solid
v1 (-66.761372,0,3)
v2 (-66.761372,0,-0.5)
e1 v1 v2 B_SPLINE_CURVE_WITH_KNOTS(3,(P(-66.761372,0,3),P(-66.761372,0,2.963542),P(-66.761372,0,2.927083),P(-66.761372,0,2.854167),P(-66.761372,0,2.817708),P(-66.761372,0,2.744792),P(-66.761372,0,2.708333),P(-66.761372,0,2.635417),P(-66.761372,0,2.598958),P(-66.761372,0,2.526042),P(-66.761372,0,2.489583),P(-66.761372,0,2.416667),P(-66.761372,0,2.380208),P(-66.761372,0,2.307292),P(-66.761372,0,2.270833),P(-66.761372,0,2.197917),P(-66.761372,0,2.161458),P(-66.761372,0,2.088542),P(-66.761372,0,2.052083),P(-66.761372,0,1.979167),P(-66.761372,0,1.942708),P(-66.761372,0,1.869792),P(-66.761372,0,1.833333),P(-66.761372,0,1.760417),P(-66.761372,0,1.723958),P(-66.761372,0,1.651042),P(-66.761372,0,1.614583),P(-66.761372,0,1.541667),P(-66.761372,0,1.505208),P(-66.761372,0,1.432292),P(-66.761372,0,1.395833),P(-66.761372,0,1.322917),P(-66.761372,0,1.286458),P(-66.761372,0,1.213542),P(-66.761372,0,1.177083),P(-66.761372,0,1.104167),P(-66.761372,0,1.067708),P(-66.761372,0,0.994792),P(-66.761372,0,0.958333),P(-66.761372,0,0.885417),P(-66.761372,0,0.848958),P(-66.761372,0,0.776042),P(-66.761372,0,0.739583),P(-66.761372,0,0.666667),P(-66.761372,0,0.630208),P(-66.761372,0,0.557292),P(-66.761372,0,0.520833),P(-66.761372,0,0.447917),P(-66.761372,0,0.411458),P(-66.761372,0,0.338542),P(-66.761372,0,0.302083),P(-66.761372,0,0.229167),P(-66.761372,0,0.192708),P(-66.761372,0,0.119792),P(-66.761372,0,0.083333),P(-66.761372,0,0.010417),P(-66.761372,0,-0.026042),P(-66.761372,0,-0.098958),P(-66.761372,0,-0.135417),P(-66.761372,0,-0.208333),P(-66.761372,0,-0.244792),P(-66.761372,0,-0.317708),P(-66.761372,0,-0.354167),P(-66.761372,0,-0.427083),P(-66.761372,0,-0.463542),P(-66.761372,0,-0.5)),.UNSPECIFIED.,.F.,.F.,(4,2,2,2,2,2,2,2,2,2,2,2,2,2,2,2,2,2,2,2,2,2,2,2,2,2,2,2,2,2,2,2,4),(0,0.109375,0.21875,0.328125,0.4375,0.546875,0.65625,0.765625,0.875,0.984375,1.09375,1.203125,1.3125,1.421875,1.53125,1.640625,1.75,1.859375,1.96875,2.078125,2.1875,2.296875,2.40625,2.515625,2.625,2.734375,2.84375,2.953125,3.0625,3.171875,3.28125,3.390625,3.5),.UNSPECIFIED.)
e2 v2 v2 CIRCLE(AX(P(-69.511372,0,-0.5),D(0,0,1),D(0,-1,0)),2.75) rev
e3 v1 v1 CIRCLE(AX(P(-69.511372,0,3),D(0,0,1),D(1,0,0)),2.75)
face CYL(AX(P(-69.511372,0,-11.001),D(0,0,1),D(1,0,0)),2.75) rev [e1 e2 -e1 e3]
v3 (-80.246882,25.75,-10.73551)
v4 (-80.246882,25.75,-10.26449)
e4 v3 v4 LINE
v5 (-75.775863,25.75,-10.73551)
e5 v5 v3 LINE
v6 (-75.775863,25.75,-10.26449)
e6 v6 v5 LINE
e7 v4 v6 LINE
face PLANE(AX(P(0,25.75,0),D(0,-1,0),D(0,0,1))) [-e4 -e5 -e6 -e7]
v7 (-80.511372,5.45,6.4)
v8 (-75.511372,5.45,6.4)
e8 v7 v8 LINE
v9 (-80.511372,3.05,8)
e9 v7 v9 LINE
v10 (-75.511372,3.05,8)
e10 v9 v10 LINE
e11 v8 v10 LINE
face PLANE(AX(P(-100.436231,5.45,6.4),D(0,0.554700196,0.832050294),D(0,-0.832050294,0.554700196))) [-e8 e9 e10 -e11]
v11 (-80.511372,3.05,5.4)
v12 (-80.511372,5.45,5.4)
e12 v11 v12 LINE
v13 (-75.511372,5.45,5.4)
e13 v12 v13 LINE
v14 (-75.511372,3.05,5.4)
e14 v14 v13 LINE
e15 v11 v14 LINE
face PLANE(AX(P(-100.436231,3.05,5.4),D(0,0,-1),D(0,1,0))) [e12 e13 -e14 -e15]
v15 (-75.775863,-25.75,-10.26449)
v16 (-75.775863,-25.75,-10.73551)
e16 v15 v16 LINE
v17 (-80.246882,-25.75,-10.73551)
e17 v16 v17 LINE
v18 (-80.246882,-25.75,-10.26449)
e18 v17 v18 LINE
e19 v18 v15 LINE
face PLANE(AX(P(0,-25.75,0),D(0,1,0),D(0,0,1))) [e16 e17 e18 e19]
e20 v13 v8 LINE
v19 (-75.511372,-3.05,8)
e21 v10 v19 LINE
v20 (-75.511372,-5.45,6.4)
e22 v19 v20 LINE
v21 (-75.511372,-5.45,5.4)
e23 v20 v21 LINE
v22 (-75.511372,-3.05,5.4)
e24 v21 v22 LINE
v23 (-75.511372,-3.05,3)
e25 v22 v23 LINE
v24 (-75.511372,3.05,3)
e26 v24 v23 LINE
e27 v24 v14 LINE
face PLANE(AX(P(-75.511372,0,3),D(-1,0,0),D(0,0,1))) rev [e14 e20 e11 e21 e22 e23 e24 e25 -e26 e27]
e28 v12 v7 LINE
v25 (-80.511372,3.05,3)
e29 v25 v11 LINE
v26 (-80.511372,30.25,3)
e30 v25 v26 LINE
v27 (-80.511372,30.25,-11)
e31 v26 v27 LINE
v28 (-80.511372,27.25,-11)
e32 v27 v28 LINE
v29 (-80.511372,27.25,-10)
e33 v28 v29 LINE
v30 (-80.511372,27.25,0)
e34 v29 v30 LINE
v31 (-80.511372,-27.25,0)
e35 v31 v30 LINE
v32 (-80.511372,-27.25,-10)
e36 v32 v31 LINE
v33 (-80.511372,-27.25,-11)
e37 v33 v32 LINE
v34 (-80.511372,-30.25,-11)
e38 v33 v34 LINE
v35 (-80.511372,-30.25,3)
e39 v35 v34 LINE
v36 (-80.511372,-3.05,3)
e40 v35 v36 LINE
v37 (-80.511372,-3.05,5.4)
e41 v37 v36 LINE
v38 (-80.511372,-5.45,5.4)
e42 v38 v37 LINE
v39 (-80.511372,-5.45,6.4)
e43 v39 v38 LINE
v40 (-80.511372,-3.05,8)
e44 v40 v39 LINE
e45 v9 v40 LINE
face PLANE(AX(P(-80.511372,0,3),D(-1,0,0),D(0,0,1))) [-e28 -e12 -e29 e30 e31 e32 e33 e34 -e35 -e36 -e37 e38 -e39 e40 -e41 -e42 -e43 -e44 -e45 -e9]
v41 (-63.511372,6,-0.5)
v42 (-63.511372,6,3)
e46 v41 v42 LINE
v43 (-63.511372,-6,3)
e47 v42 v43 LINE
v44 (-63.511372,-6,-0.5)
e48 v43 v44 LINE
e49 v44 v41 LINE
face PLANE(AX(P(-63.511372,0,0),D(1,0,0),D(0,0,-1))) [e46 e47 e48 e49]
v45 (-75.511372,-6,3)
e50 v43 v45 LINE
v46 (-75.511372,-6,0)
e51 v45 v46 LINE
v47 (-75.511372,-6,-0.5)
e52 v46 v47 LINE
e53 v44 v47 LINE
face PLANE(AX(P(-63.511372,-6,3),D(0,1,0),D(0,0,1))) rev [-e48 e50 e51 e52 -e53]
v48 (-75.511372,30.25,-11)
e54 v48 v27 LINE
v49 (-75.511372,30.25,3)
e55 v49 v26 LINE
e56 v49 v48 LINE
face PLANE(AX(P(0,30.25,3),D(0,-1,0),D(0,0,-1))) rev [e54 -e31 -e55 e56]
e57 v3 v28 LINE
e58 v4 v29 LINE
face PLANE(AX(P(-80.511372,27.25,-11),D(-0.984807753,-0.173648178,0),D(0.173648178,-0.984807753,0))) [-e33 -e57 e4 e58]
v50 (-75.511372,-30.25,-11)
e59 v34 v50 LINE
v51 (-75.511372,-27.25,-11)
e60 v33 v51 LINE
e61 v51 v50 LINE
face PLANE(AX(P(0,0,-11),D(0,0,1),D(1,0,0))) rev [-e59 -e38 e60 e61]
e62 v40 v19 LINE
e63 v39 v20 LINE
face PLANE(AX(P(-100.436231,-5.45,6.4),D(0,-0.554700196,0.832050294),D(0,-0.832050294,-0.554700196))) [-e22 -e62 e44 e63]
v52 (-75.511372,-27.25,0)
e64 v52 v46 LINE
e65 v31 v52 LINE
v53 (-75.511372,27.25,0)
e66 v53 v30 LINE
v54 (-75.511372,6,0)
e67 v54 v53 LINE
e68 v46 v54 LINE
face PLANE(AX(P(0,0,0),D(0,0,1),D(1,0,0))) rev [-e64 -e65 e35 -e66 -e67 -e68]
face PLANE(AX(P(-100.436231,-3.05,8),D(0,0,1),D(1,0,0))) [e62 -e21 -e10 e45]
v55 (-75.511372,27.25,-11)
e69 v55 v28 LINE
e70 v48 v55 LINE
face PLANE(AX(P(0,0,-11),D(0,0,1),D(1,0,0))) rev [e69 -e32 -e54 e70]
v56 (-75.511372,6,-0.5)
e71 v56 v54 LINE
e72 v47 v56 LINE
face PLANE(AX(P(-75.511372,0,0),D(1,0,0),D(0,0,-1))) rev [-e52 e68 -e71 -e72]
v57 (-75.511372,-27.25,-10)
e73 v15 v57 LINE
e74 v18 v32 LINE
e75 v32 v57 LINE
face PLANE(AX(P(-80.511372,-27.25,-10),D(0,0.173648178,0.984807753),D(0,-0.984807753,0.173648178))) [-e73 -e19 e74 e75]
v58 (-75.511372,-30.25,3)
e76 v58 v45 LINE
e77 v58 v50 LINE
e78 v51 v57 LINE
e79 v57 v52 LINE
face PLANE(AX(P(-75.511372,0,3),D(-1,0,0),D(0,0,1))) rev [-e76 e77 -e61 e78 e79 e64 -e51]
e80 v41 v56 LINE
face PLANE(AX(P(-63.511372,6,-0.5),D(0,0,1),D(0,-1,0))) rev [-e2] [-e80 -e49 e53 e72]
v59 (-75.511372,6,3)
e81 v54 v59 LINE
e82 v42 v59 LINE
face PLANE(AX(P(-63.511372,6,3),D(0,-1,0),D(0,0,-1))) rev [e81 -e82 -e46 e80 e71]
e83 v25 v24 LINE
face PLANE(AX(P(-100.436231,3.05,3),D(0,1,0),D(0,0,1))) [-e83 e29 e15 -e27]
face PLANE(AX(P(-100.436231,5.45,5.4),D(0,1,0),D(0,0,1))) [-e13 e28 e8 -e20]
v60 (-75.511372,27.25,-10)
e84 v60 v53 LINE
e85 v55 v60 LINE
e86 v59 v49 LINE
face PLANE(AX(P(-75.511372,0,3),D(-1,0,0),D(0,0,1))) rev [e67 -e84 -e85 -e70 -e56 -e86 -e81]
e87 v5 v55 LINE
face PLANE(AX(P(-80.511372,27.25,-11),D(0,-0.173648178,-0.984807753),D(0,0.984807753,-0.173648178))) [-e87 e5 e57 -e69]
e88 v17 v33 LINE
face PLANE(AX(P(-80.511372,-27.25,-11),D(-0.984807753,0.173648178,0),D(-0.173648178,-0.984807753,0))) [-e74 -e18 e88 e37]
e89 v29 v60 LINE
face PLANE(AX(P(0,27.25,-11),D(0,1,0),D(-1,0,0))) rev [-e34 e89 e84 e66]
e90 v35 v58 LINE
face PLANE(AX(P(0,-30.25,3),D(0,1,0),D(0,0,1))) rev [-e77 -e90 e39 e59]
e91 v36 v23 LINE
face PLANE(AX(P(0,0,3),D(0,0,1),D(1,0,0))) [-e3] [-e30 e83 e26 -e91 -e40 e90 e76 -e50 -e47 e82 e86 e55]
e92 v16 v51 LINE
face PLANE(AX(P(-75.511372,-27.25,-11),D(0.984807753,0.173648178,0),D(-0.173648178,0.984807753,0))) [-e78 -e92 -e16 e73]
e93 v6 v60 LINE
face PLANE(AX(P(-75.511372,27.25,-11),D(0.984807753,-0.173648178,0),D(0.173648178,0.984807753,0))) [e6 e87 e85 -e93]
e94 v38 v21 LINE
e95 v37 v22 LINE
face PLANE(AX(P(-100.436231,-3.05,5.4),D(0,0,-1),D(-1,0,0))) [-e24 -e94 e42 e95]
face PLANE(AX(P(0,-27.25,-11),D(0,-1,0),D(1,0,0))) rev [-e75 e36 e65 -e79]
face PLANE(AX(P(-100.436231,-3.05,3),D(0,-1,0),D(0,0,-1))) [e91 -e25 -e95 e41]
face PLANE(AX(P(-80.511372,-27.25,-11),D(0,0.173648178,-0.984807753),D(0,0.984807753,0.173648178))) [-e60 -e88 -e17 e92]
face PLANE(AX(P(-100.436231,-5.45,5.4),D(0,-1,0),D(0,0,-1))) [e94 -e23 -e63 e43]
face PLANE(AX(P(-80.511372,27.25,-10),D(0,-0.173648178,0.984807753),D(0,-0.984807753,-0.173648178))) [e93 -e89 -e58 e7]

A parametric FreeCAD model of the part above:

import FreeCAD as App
import Part
import Sketcher

V = App.Vector

doc = App.newDocument("Part")
params = doc.addObject("Spreadsheet::Sheet", "Params")
for row, (alias, value) in enumerate([
    ("sketch1_width", "5 mm"),
    ("sketch1_height", "60.5 mm"),
    ("pad1_length", "3 mm"),
    ("sketch2_width", "5 mm"),
    ("sketch2_height", "3 mm"),
    ("pad2_length", "11 mm"),
    ("sketch3_width", "5 mm"),
    ("sketch3_height", "1 mm"),
    ("pad3_length", "1.5 mm"),
    ("pad3_taper", "-10 deg"),
    ("sketch4_width", "19 mm"),
    ("sketch4_height", "1 mm"),
    ("sketch4_width2", "2.4 mm"),
    ("sketch4_width3", "6.1 mm"),
    ("pad4_length", "5 mm"),
    ("sketch5_width", "12 mm"),
    ("sketch5_height", "3.5 mm"),
    ("pad5_length", "12 mm"),
    ("sketch6_diameter", "5.5 mm"),
], start=1):
    params.set(f"A{row}", alias)
    params.set(f"B{row}", "=" + value)
    params.setAlias(f"B{row}", alias)

body = doc.addObject("PartDesign::Body", "Body")

# Sketch on XY plane
sketch1 = body.newObject("Sketcher::SketchObject", "Sketch")
sketch1.AttachmentSupport = (doc.getObject("XY_Plane"), [""])
sketch1.MapMode = "FlatFace"
sketch1.addGeometry(Part.LineSegment(V(-81, -30, 0), V(-76, -30, 0)), False)
sketch1.addGeometry(Part.LineSegment(V(-76, -30, 0), V(-76, 30, 0)), False)
sketch1.addGeometry(Part.LineSegment(V(-76, 30, 0), V(-81, 30, 0)), False)
sketch1.addGeometry(Part.LineSegment(V(-81, 30, 0), V(-81, -30, 0)), False)
sketch1.addConstraint(Sketcher.Constraint("Coincident", 0, 2, 1, 1))
sketch1.addConstraint(Sketcher.Constraint("Coincident", 1, 2, 2, 1))
sketch1.addConstraint(Sketcher.Constraint("Coincident", 2, 2, 3, 1))
sketch1.addConstraint(Sketcher.Constraint("Coincident", 3, 2, 0, 1))
sketch1.addConstraint(Sketcher.Constraint("Horizontal", 0))
sketch1.addConstraint(Sketcher.Constraint("Vertical", 1))
sketch1.addConstraint(Sketcher.Constraint("Horizontal", 2))
sketch1.addConstraint(Sketcher.Constraint("Vertical", 3))
sketch1.addConstraint(Sketcher.Constraint("DistanceX", 0, 1, 0, 2, 5.0))
sketch1.addConstraint(Sketcher.Constraint("DistanceY", 1, 1, 1, 2, 60.5))
sketch1.addConstraint(Sketcher.Constraint("DistanceY", 0, 2, -1, 1, 30.25))
sketch1.addConstraint(Sketcher.Constraint("DistanceX", 0, 2, -1, 1, 75.511372))
sketch1.setExpression("Constraints[8]", "Params.sketch1_width")
sketch1.setExpression("Constraints[9]", "Params.sketch1_height")
pad1 = body.newObject("PartDesign::Pad", "Pad")
pad1.Profile = sketch1
pad1.setExpression("Length", "Params.pad1_length")

# Sketch on XY plane
sketch2 = body.newObject("Sketcher::SketchObject", "Sketch001")
sketch2.AttachmentSupport = (doc.getObject("XY_Plane"), [""])
sketch2.MapMode = "FlatFace"
sketch2.addGeometry(Part.LineSegment(V(-80.5, -27.2, 0), V(-80.5, -30.2, 0)), False)
sketch2.addGeometry(Part.LineSegment(V(-80.5, -30.2, 0), V(-75.5, -30.2, 0)), False)
sketch2.addGeometry(Part.LineSegment(V(-75.5, -30.2, 0), V(-75.5, -27.2, 0)), False)
sketch2.addGeometry(Part.LineSegment(V(-75.5, -27.2, 0), V(-80.5, -27.2, 0)), False)
sketch2.addGeometry(Part.LineSegment(V(-80.5, 30.2, 0), V(-80.5, 27.2, 0)), False)
sketch2.addGeometry(Part.LineSegment(V(-80.5, 27.2, 0), V(-75.5, 27.2, 0)), False)
sketch2.addGeometry(Part.LineSegment(V(-75.5, 27.2, 0), V(-75.5, 30.2, 0)), False)
sketch2.addGeometry(Part.LineSegment(V(-75.5, 30.2, 0), V(-80.5, 30.2, 0)), False)
sketch2.addConstraint(Sketcher.Constraint("Coincident", 0, 2, 1, 1))
sketch2.addConstraint(Sketcher.Constraint("Coincident", 1, 2, 2, 1))
sketch2.addConstraint(Sketcher.Constraint("Coincident", 2, 2, 3, 1))
sketch2.addConstraint(Sketcher.Constraint("Coincident", 3, 2, 0, 1))
sketch2.addConstraint(Sketcher.Constraint("Coincident", 4, 2, 5, 1))
sketch2.addConstraint(Sketcher.Constraint("Coincident", 5, 2, 6, 1))
sketch2.addConstraint(Sketcher.Constraint("Coincident", 6, 2, 7, 1))
sketch2.addConstraint(Sketcher.Constraint("Coincident", 7, 2, 4, 1))
sketch2.addConstraint(Sketcher.Constraint("Vertical", 0))
sketch2.addConstraint(Sketcher.Constraint("Horizontal", 1))
sketch2.addConstraint(Sketcher.Constraint("Vertical", 2))
sketch2.addConstraint(Sketcher.Constraint("Horizontal", 3))
sketch2.addConstraint(Sketcher.Constraint("Vertical", 4))
sketch2.addConstraint(Sketcher.Constraint("Horizontal", 5))
sketch2.addConstraint(Sketcher.Constraint("Vertical", 6))
sketch2.addConstraint(Sketcher.Constraint("Horizontal", 7))
sketch2.addConstraint(Sketcher.Constraint("Symmetric", 3, 2, 4, 2, -1))
sketch2.addConstraint(Sketcher.Constraint("Symmetric", 1, 2, 6, 2, -1))
sketch2.addConstraint(Sketcher.Constraint("DistanceX", 1, 1, 1, 2, 5.0))
sketch2.addConstraint(Sketcher.Constraint("DistanceY", 0, 2, 0, 1, 3.0))
sketch2.addConstraint(Sketcher.Constraint("DistanceY", 3, 2, 4, 2, 54.5))
sketch2.addConstraint(Sketcher.Constraint("DistanceX", 0, 2, -1, 1, 80.511372))
sketch2.setExpression("Constraints[18]", "Params.sketch2_width")
sketch2.setExpression("Constraints[19]", "Params.sketch2_height")
pad2 = body.newObject("PartDesign::Pad", "Pad001")
pad2.Profile = sketch2
pad2.setExpression("Length", "Params.pad2_length")
pad2.Reversed = True

# Sketch on XZ plane
sketch3 = body.newObject("Sketcher::SketchObject", "Sketch002")
sketch3.AttachmentSupport = (doc.getObject("XZ_Plane"), [""])
sketch3.MapMode = "FlatFace"
sketch3.AttachmentOffset = App.Placement(V(0, 0, 27.25), App.Rotation())
sketch3.addGeometry(Part.LineSegment(V(-80.5, -11, 0), V(-80.5, -10, 0)), False)
sketch3.addGeometry(Part.LineSegment(V(-80.5, -10, 0), V(-75.5, -10, 0)), False)
sketch3.addGeometry(Part.LineSegment(V(-75.5, -10, 0), V(-75.5, -11, 0)), False)
sketch3.addGeometry(Part.LineSegment(V(-75.5, -11, 0), V(-80.5, -11, 0)), False)
sketch3.addConstraint(Sketcher.Constraint("Coincident", 0, 2, 1, 1))
sketch3.addConstraint(Sketcher.Constraint("Coincident", 1, 2, 2, 1))
sketch3.addConstraint(Sketcher.Constraint("Coincident", 2, 2, 3, 1))
sketch3.addConstraint(Sketcher.Constraint("Coincident", 3, 2, 0, 1))
sketch3.addConstraint(Sketcher.Constraint("Vertical", 0))
sketch3.addConstraint(Sketcher.Constraint("Horizontal", 1))
sketch3.addConstraint(Sketcher.Constraint("Vertical", 2))
sketch3.addConstraint(Sketcher.Constraint("Horizontal", 3))
sketch3.addConstraint(Sketcher.Constraint("DistanceX", 1, 1, 1, 2, 5.0))
sketch3.addConstraint(Sketcher.Constraint("DistanceY", 0, 1, 0, 2, 1.0))
sketch3.addConstraint(Sketcher.Constraint("DistanceY", 0, 2, -1, 1, 10.0))
sketch3.addConstraint(Sketcher.Constraint("DistanceX", 0, 2, -1, 1, 80.511372))
sketch3.setExpression("Constraints[8]", "Params.sketch3_width")
sketch3.setExpression("Constraints[9]", "Params.sketch3_height")
pad3 = body.newObject("PartDesign::Pad", "Pad002")
pad3.Profile = sketch3
pad3.setExpression("Length", "Params.pad3_length")
pad3.Reversed = True
pad3.setExpression("TaperAngle", "Params.pad3_taper")
doc.recompute()

mirrored = body.newObject("PartDesign::Mirrored", "Mirrored")
mirrored.Originals = [pad3]
mirrored.MirrorPlane = (doc.getObject("XZ_Plane"), [""])
body.Tip = mirrored

# Sketch on YZ plane
sketch4 = body.newObject("Sketcher::SketchObject", "Sketch003")
sketch4.AttachmentSupport = (doc.getObject("YZ_Plane"), [""])
sketch4.MapMode = "FlatFace"
sketch4.AttachmentOffset = App.Placement(V(0, 0, -75.511372), App.Rotation())
sketch4.addGeometry(Part.LineSegment(V(9.5, 2, 0), V(9.5, 3, 0)), False)
sketch4.addGeometry(Part.LineSegment(V(9.5, 3, 0), V(3, 3, 0)), False)
sketch4.addGeometry(Part.LineSegment(V(3, 3, 0), V(3, 5.4, 0)), False)
sketch4.addGeometry(Part.LineSegment(V(3, 5.4, 0), V(5.5, 5.4, 0)), False)
sketch4.addGeometry(Part.LineSegment(V(5.5, 5.4, 0), V(5.5, 6.4, 0)), False)
sketch4.addGeometry(Part.LineSegment(V(5.5, 6.4, 0), V(3, 8, 0)), False)
sketch4.addGeometry(Part.LineSegment(V(3, 8, 0), V(-3, 8, 0)), False)
sketch4.addGeometry(Part.LineSegment(V(-3, 8, 0), V(-5.5, 6.4, 0)), False)
sketch4.addGeometry(Part.LineSegment(V(-5.5, 6.4, 0), V(-5.5, 5.4, 0)), False)
sketch4.addGeometry(Part.LineSegment(V(-5.5, 5.4, 0), V(-3, 5.4, 0)), False)
sketch4.addGeometry(Part.LineSegment(V(-3, 5.4, 0), V(-3, 3, 0)), False)
sketch4.addGeometry(Part.LineSegment(V(-3, 3, 0), V(-9.5, 3, 0)), False)
sketch4.addGeometry(Part.LineSegment(V(-9.5, 3, 0), V(-9.5, 2, 0)), False)
sketch4.addGeometry(Part.LineSegment(V(-9.5, 2, 0), V(9.5, 2, 0)), False)
sketch4.addConstraint(Sketcher.Constraint("Coincident", 0, 2, 1, 1))
sketch4.addConstraint(Sketcher.Constraint("Coincident", 1, 2, 2, 1))
sketch4.addConstraint(Sketcher.Constraint("Coincident", 2, 2, 3, 1))
sketch4.addConstraint(Sketcher.Constraint("Coincident", 3, 2, 4, 1))
sketch4.addConstraint(Sketcher.Constraint("Coincident", 4, 2, 5, 1))
sketch4.addConstraint(Sketcher.Constraint("Coincident", 5, 2, 6, 1))
sketch4.addConstraint(Sketcher.Constraint("Coincident", 6, 2, 7, 1))
sketch4.addConstraint(Sketcher.Constraint("Coincident", 7, 2, 8, 1))
sketch4.addConstraint(Sketcher.Constraint("Coincident", 8, 2, 9, 1))
sketch4.addConstraint(Sketcher.Constraint("Coincident", 9, 2, 10, 1))
sketch4.addConstraint(Sketcher.Constraint("Coincident", 10, 2, 11, 1))
sketch4.addConstraint(Sketcher.Constraint("Coincident", 11, 2, 12, 1))
sketch4.addConstraint(Sketcher.Constraint("Coincident", 12, 2, 13, 1))
sketch4.addConstraint(Sketcher.Constraint("Coincident", 13, 2, 0, 1))
sketch4.addConstraint(Sketcher.Constraint("Vertical", 0))
sketch4.addConstraint(Sketcher.Constraint("Horizontal", 1))
sketch4.addConstraint(Sketcher.Constraint("Vertical", 2))
sketch4.addConstraint(Sketcher.Constraint("Horizontal", 3))
sketch4.addConstraint(Sketcher.Constraint("Vertical", 4))
sketch4.addConstraint(Sketcher.Constraint("Horizontal", 6))
sketch4.addConstraint(Sketcher.Constraint("Vertical", 8))
sketch4.addConstraint(Sketcher.Constraint("Horizontal", 9))
sketch4.addConstraint(Sketcher.Constraint("Vertical", 10))
sketch4.addConstraint(Sketcher.Constraint("Horizontal", 11))
sketch4.addConstraint(Sketcher.Constraint("Vertical", 12))
sketch4.addConstraint(Sketcher.Constraint("Horizontal", 13))
sketch4.addConstraint(Sketcher.Constraint("Symmetric", 4, 2, 7, 2, -2))
sketch4.addConstraint(Sketcher.Constraint("Symmetric", 2, 2, 9, 2, -2))
sketch4.addConstraint(Sketcher.Constraint("Symmetric", 0, 2, 11, 2, -2))
sketch4.addConstraint(Sketcher.Constraint("Vertical", 2, 2, 5, 2))
sketch4.addConstraint(Sketcher.Constraint("Vertical", 6, 2, 9, 2))
sketch4.addConstraint(Sketcher.Constraint("Equal", 9, 2))
sketch4.addConstraint(Sketcher.Constraint("Equal", 0, 4))
sketch4.addConstraint(Sketcher.Constraint("DistanceX", 13, 1, 13, 2, 19.0))
sketch4.addConstraint(Sketcher.Constraint("DistanceY", 0, 1, 0, 2, 1.0))
sketch4.addConstraint(Sketcher.Constraint("DistanceX", 3, 1, 3, 2, 2.4))
sketch4.addConstraint(Sketcher.Constraint("DistanceX", 6, 2, 6, 1, 6.1))
sketch4.addConstraint(Sketcher.Constraint("DistanceY", -1, 1, 0, 2, 3.0))
sketch4.addConstraint(Sketcher.Constraint("DistanceY", -1, 1, 5, 2, 8.0))
sketch4.setExpression("Constraints[33]", "Params.sketch4_width")
sketch4.setExpression("Constraints[34]", "Params.sketch4_height")
sketch4.setExpression("Constraints[35]", "Params.sketch4_width2")
sketch4.setExpression("Constraints[36]", "Params.sketch4_width3")
pad4 = body.newObject("PartDesign::Pad", "Pad003")
pad4.Profile = sketch4
pad4.setExpression("Length", "Params.pad4_length")
pad4.Reversed = True

# Sketch on YZ plane
sketch5 = body.newObject("Sketcher::SketchObject", "Sketch004")
sketch5.AttachmentSupport = (doc.getObject("YZ_Plane"), [""])
sketch5.MapMode = "FlatFace"
sketch5.AttachmentOffset = App.Placement(V(0, 0, -75.511372), App.Rotation())
sketch5.addGeometry(Part.LineSegment(V(6, 3, 0), V(-6, 3, 0)), False)
sketch5.addGeometry(Part.LineSegment(V(-6, 3, 0), V(-6, -0.5, 0)), False)
sketch5.addGeometry(Part.LineSegment(V(-6, -0.5, 0), V(6, -0.5, 0)), False)
sketch5.addGeometry(Part.LineSegment(V(6, -0.5, 0), V(6, 3, 0)), False)
sketch5.addConstraint(Sketcher.Constraint("Coincident", 0, 2, 1, 1))
sketch5.addConstraint(Sketcher.Constraint("Coincident", 1, 2, 2, 1))
sketch5.addConstraint(Sketcher.Constraint("Coincident", 2, 2, 3, 1))
sketch5.addConstraint(Sketcher.Constraint("Coincident", 3, 2, 0, 1))
sketch5.addConstraint(Sketcher.Constraint("Horizontal", 0))
sketch5.addConstraint(Sketcher.Constraint("Vertical", 1))
sketch5.addConstraint(Sketcher.Constraint("Horizontal", 2))
sketch5.addConstraint(Sketcher.Constraint("Vertical", 3))
sketch5.addConstraint(Sketcher.Constraint("DistanceX", 0, 2, 0, 1, 12.0))
sketch5.addConstraint(Sketcher.Constraint("DistanceY", 1, 2, 1, 1, 3.5))
sketch5.addConstraint(Sketcher.Constraint("DistanceX", 0, 2, -1, 1, 6.0))
sketch5.addConstraint(Sketcher.Constraint("DistanceY", -1, 1, 0, 2, 3.0))
sketch5.setExpression("Constraints[8]", "Params.sketch5_width")
sketch5.setExpression("Constraints[9]", "Params.sketch5_height")
pad5 = body.newObject("PartDesign::Pad", "Pad004")
pad5.Profile = sketch5
pad5.setExpression("Length", "Params.pad5_length")

# Sketch on XY plane
sketch6 = body.newObject("Sketcher::SketchObject", "Sketch005")
sketch6.AttachmentSupport = (doc.getObject("XY_Plane"), [""])
sketch6.MapMode = "FlatFace"
sketch6.AttachmentOffset = App.Placement(V(0, 0, 3), App.Rotation())
sketch6.addGeometry(Part.Circle(V(-69.5, 0, 0), V(0, 0, 1), 2.8), False)
sketch6.addConstraint(Sketcher.Constraint("PointOnObject", 0, 3, -1))
sketch6.addConstraint(Sketcher.Constraint("Diameter", 0, 5.5))
sketch6.addConstraint(Sketcher.Constraint("DistanceX", 0, 3, -1, 1, 69.511372))
sketch6.setExpression("Constraints[1]", "Params.sketch6_diameter")
pocket1 = body.newObject("PartDesign::Pocket", "Pocket")
pocket1.Profile = sketch6
pocket1.Type = "UpToFirst"

doc.recompute()
